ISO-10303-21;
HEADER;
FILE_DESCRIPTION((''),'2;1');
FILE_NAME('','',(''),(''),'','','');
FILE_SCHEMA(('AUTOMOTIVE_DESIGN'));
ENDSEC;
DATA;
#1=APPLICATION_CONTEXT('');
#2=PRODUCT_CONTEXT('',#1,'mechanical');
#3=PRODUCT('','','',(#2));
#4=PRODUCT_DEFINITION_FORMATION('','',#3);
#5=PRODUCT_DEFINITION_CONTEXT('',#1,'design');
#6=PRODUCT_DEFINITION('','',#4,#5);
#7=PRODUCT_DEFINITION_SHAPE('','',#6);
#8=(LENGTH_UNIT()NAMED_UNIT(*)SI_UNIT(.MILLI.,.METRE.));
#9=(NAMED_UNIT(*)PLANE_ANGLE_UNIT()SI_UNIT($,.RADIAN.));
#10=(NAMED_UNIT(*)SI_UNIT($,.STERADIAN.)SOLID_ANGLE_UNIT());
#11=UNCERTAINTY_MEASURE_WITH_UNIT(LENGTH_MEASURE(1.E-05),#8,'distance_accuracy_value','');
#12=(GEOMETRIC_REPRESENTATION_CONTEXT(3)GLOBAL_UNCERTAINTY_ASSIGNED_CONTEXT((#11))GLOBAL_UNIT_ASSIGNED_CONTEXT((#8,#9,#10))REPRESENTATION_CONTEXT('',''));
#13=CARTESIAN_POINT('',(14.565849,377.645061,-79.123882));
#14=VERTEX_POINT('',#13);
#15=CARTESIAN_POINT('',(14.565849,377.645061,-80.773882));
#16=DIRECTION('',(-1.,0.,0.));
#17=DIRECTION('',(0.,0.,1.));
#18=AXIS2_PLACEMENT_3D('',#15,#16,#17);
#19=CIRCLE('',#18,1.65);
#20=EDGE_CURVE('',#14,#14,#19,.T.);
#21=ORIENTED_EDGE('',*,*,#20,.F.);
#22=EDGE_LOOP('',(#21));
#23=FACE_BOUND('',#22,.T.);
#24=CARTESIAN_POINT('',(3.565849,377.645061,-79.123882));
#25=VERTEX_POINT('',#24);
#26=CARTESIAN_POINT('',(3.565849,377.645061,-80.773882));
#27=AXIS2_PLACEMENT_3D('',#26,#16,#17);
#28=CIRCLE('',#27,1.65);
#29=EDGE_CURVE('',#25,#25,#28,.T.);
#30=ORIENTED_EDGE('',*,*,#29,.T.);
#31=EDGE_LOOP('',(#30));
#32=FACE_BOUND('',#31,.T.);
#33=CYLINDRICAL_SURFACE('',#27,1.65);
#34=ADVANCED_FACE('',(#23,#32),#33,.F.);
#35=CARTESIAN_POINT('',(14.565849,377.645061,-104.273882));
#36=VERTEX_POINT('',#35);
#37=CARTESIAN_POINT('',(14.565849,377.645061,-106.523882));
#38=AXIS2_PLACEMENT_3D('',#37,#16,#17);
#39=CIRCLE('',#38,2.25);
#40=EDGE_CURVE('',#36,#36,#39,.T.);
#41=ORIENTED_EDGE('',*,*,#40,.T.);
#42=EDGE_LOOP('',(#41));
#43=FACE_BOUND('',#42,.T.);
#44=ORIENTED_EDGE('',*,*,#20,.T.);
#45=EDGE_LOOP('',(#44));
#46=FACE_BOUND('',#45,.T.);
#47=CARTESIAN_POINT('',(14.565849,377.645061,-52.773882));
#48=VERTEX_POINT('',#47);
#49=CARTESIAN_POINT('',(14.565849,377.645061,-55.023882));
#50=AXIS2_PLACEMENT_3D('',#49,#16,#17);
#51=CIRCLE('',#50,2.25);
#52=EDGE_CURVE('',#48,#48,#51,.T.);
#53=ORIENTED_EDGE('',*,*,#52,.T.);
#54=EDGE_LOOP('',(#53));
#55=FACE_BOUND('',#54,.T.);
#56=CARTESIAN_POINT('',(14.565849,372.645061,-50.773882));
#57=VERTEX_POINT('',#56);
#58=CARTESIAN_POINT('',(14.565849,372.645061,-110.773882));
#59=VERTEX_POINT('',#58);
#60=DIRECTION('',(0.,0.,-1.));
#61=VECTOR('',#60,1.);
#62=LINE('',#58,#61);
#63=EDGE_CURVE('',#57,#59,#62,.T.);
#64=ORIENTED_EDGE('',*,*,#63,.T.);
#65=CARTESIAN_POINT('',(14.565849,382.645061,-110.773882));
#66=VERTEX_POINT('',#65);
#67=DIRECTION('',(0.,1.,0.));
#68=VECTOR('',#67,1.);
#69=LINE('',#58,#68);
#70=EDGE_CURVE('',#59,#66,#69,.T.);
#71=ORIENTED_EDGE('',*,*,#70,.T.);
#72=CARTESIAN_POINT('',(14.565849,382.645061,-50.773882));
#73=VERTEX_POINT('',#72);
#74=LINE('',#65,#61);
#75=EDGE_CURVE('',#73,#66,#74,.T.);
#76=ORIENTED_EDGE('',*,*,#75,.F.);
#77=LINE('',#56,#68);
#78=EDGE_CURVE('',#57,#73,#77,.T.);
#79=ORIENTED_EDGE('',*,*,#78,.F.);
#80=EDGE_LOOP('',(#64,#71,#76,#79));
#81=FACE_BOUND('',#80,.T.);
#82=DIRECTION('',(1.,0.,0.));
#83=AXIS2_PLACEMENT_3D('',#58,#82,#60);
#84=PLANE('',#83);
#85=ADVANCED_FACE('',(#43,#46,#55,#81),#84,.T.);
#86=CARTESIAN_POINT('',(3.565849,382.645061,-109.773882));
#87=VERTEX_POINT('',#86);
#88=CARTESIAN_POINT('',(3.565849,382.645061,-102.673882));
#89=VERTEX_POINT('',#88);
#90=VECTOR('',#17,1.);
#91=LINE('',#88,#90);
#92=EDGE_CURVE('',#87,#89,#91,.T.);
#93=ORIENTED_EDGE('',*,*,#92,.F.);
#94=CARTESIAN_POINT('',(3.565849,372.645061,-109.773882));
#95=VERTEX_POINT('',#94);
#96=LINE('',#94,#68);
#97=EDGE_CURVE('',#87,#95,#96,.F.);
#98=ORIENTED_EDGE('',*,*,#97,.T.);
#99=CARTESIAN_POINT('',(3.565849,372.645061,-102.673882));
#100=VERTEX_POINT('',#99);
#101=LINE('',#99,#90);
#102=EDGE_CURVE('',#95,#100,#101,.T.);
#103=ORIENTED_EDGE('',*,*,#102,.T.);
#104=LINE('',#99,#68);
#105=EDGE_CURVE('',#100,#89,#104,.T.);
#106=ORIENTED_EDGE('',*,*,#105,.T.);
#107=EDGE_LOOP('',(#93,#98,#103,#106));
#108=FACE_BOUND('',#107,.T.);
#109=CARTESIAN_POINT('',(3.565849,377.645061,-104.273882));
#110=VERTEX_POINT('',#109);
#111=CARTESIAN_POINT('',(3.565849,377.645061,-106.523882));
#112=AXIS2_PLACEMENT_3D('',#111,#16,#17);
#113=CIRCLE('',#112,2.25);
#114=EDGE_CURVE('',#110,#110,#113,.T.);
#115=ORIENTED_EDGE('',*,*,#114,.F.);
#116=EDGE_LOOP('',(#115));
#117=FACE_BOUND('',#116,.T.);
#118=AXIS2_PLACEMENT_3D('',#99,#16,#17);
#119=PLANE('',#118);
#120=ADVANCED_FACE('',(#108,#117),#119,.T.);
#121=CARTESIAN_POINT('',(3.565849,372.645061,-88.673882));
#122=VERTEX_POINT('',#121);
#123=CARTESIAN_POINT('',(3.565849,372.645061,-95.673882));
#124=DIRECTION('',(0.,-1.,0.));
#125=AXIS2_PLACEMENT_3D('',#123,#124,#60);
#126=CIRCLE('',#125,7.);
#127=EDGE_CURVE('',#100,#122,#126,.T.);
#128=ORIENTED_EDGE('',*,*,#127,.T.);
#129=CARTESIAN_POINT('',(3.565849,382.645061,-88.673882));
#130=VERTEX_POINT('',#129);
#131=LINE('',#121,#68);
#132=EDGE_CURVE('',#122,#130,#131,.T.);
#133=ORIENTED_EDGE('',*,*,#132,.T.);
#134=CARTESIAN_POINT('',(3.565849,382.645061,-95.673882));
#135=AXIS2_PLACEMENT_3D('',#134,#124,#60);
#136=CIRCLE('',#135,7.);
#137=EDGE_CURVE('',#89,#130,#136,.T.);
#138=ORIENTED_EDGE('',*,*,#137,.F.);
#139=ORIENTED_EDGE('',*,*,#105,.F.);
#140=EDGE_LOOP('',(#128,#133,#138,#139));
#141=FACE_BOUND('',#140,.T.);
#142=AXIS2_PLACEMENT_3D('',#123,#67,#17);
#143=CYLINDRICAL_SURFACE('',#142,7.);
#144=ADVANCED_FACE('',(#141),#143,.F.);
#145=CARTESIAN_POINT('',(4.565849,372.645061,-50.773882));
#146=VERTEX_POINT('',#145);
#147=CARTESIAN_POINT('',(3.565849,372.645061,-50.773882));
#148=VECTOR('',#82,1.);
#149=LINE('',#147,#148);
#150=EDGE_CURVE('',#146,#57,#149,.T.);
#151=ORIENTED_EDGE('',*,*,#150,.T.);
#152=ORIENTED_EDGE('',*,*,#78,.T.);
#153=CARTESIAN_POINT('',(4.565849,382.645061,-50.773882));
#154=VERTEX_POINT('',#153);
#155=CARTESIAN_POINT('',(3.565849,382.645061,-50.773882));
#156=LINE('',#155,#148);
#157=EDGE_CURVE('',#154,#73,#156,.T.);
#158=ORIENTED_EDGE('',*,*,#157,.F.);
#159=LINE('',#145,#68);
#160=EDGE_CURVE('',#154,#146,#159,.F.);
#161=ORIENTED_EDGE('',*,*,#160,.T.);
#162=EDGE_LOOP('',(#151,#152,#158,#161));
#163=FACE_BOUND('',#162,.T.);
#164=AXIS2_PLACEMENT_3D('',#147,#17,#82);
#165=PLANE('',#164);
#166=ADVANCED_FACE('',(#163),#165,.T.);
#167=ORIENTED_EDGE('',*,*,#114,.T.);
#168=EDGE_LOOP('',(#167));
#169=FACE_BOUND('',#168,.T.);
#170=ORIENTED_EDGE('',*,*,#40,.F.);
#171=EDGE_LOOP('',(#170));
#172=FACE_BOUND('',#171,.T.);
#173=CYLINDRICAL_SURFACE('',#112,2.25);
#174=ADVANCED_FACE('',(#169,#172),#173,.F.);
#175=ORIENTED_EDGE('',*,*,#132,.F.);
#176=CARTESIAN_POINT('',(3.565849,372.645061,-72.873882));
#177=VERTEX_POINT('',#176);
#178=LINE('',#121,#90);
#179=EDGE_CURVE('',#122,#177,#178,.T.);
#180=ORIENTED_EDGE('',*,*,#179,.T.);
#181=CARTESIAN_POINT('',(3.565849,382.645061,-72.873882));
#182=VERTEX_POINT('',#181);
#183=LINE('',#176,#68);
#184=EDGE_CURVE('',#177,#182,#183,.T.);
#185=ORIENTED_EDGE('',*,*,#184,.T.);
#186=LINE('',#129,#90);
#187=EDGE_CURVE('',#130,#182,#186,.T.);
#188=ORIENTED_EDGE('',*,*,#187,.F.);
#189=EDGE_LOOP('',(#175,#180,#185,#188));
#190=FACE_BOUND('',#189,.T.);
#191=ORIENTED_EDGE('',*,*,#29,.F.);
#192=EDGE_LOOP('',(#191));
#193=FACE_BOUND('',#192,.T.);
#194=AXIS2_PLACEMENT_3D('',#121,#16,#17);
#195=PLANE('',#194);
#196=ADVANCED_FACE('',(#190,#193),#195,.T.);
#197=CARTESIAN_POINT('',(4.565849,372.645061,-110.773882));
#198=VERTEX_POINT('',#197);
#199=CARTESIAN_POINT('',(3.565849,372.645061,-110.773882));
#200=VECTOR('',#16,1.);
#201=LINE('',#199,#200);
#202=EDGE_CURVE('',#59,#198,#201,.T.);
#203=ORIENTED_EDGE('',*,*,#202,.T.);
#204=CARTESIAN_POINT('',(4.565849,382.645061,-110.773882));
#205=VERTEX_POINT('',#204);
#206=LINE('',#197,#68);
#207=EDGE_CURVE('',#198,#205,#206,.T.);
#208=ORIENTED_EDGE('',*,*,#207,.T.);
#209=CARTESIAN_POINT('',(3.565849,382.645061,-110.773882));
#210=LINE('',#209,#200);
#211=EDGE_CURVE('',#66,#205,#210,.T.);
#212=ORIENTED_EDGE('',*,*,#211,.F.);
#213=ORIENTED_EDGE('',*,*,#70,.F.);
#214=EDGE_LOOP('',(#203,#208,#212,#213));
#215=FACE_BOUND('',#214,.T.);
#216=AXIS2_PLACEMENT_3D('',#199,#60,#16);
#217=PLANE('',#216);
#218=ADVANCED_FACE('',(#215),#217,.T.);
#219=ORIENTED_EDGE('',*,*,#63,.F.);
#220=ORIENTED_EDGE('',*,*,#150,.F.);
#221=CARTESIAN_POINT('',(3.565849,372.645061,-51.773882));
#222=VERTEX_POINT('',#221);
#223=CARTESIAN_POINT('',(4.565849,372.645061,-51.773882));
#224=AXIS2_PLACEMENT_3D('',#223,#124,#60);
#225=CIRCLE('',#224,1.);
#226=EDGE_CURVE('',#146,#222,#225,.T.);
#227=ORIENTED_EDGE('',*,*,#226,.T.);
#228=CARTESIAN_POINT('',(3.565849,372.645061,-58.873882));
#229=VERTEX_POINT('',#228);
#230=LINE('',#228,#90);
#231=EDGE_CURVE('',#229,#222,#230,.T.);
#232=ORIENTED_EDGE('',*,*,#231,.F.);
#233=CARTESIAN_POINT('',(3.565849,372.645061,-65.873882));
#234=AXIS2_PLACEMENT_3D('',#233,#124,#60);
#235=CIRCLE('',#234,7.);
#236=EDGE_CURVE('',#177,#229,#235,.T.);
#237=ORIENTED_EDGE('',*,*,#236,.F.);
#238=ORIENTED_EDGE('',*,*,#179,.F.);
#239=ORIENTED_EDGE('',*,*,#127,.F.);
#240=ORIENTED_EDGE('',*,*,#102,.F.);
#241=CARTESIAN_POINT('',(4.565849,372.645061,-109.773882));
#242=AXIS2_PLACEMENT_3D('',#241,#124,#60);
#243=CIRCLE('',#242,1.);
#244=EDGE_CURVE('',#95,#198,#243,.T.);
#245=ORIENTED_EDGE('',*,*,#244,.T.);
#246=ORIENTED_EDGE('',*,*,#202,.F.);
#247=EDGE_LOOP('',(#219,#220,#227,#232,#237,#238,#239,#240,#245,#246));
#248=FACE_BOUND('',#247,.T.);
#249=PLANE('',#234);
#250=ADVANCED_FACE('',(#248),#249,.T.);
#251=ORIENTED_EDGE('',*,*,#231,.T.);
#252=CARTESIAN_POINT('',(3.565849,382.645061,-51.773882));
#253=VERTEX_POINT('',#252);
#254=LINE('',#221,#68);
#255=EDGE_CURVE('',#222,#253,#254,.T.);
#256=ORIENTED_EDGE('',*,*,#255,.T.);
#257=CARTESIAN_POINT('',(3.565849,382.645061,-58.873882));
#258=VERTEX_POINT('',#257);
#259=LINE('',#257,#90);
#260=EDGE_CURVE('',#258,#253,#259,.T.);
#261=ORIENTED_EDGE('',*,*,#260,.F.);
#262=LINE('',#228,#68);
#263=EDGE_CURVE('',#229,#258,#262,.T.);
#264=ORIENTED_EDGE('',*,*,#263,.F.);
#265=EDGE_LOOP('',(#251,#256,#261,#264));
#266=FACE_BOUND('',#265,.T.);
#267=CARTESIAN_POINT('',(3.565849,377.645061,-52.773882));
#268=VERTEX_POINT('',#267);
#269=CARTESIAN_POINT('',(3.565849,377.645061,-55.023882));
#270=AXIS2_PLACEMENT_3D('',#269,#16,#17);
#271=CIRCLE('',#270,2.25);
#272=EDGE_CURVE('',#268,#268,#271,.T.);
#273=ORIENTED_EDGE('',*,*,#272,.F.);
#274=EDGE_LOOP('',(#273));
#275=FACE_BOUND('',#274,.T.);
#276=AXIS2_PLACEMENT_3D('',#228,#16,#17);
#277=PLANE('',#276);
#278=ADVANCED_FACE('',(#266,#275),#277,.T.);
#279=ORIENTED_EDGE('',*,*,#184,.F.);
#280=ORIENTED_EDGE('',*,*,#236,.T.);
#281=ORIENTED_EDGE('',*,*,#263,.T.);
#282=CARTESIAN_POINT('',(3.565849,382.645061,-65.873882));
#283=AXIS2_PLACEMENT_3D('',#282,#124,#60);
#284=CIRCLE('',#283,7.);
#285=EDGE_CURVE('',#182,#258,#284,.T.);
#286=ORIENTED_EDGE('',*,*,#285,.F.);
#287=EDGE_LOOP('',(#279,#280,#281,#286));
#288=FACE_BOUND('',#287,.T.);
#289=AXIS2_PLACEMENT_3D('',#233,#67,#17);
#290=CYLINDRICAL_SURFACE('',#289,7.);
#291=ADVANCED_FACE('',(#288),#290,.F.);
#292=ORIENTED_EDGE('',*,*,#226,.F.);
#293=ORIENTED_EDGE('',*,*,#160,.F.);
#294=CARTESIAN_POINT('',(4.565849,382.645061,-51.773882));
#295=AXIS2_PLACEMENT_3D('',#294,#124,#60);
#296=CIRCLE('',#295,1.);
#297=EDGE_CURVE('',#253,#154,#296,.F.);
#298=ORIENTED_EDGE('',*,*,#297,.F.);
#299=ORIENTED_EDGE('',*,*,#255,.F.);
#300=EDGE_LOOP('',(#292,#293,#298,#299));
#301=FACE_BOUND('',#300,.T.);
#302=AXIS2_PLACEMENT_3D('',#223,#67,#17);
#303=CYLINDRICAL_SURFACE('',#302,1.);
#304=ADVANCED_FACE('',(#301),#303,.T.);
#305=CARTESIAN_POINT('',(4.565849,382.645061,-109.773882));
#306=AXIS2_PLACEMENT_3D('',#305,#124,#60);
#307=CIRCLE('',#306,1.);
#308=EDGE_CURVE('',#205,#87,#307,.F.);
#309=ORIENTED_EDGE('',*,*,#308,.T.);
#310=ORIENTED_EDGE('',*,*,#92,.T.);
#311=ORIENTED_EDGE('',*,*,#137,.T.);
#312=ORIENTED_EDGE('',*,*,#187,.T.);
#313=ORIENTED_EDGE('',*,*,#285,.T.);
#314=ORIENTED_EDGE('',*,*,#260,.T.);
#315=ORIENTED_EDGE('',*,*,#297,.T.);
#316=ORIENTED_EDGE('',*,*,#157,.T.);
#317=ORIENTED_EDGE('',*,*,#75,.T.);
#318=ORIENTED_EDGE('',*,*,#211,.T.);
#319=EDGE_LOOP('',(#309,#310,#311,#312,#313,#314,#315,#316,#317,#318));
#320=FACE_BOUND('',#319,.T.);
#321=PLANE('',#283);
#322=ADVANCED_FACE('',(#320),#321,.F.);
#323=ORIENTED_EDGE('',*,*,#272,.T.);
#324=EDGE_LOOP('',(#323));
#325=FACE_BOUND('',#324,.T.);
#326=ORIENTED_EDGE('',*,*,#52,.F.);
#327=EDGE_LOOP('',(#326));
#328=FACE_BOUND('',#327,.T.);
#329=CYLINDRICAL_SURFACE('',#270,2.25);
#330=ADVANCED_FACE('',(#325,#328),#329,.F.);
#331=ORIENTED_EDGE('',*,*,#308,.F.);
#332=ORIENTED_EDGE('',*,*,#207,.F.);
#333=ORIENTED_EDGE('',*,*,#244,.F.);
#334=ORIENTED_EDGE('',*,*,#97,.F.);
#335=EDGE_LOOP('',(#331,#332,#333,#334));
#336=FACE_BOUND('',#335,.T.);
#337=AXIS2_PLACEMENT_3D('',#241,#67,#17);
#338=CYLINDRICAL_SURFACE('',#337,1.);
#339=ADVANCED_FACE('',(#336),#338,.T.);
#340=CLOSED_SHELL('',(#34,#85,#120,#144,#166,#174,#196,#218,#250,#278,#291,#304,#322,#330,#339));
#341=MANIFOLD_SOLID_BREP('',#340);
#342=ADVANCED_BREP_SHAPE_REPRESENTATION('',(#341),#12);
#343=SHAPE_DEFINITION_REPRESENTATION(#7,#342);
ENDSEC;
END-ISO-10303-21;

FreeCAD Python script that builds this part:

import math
import FreeCAD as App
import Part
import Sketcher

V = App.Vector


def edges_at(feature, points):
    """Names of the edges that pass closest to the given points."""
    edges = feature.Shape.Edges
    near = lambda p: min(range(len(edges)), key=lambda i: edges[i].distToShape(Part.Vertex(*p))[0])
    return sorted({f"Edge{near(p) + 1}" for p in points})

doc = App.newDocument("Part")
params = doc.addObject("Spreadsheet::Sheet", "Params")
for row, (alias, value) in enumerate([
    ("sketch1_radius", "7 mm"),
    ("sketch1_width", "11 mm"),
    ("sketch1_height", "60 mm"),
    ("sketch1_height2", "8.1 mm"),
    ("pad1_length", "10 mm"),
    ("fillet_radius", "1 mm"),
    ("sketch2_diameter", "4.5 mm"),
    ("hole_diameter", "4.5 mm"),
    ("sketch3_diameter", "3.3 mm"),
    ("hole2_diameter", "3.3 mm"),
], start=1):
    params.set(f"A{row}", alias)
    params.set(f"B{row}", "=" + value)
    params.setAlias(f"B{row}", alias)

body = doc.addObject("PartDesign::Body", "Body")

sketch1 = body.newObject("Sketcher::SketchObject", "Sketch")
sketch1.AttachmentSupport = (doc.getObject("XZ_Plane"), [""])
sketch1.MapMode = "FlatFace"
sketch1.AttachmentOffset = App.Placement(V(0, 0, -382.645061), App.Rotation())
sketch1.addGeometry(Part.LineSegment(V(4, -111, 0), V(4, -103, 0)), False)
sketch1.addGeometry(Part.ArcOfCircle(Part.Circle(V(4, -96, 0), V(0, 0, 1), 7), math.radians(-90), math.radians(90)), False)
sketch1.addGeometry(Part.LineSegment(V(4, -89, 0), V(4, -73, 0)), False)
sketch1.addGeometry(Part.ArcOfCircle(Part.Circle(V(4, -66, 0), V(0, 0, 1), 7), math.radians(-90), math.radians(90)), False)
sketch1.addGeometry(Part.LineSegment(V(4, -59, 0), V(4, -51, 0)), False)
sketch1.addGeometry(Part.LineSegment(V(4, -51, 0), V(15, -51, 0)), False)
sketch1.addGeometry(Part.LineSegment(V(15, -51, 0), V(15, -111, 0)), False)
sketch1.addGeometry(Part.LineSegment(V(15, -111, 0), V(4, -111, 0)), False)
sketch1.addConstraint(Sketcher.Constraint("Coincident", 0, 2, 1, 1))
sketch1.addConstraint(Sketcher.Constraint("Coincident", 1, 2, 2, 1))
sketch1.addConstraint(Sketcher.Constraint("Coincident", 2, 2, 3, 1))
sketch1.addConstraint(Sketcher.Constraint("Coincident", 3, 2, 4, 1))
sketch1.addConstraint(Sketcher.Constraint("Coincident", 4, 2, 5, 1))
sketch1.addConstraint(Sketcher.Constraint("Coincident", 5, 2, 6, 1))
sketch1.addConstraint(Sketcher.Constraint("Coincident", 6, 2, 7, 1))
sketch1.addConstraint(Sketcher.Constraint("Coincident", 7, 2, 0, 1))
sketch1.addConstraint(Sketcher.Constraint("Vertical", 0))
sketch1.addConstraint(Sketcher.Constraint("Vertical", 2))
sketch1.addConstraint(Sketcher.Constraint("Vertical", 4))
sketch1.addConstraint(Sketcher.Constraint("Horizontal", 5))
sketch1.addConstraint(Sketcher.Constraint("Vertical", 6))
sketch1.addConstraint(Sketcher.Constraint("Horizontal", 7))
sketch1.addConstraint(Sketcher.Constraint("Equal", 1, 3))
sketch1.addConstraint(Sketcher.Constraint("Vertical", 1, 3, 3, 3))
sketch1.addConstraint(Sketcher.Constraint("Vertical", 3, 3, 0, 2))
sketch1.addConstraint(Sketcher.Constraint("Vertical", 0, 2, 1, 2))
sketch1.addConstraint(Sketcher.Constraint("Vertical", 2, 2, 3, 2))
sketch1.addConstraint(Sketcher.Constraint("Equal", 0, 4))
sketch1.addConstraint(Sketcher.Constraint("Radius", 1, 7.0))
sketch1.addConstraint(Sketcher.Constraint("DistanceX", 5, 1, 5, 2, 11.0))
sketch1.addConstraint(Sketcher.Constraint("DistanceY", 6, 2, 6, 1, 60.0))
sketch1.addConstraint(Sketcher.Constraint("DistanceY", 0, 1, 0, 2, 8.1))
sketch1.addConstraint(Sketcher.Constraint("DistanceX", -1, 1, 1, 3, 3.565849))
sketch1.addConstraint(Sketcher.Constraint("DistanceY", 1, 3, -1, 1, 95.673882))
sketch1.setExpression("Constraints[20]", "Params.sketch1_radius")
sketch1.setExpression("Constraints[21]", "Params.sketch1_width")
sketch1.setExpression("Constraints[22]", "Params.sketch1_height")
sketch1.setExpression("Constraints[23]", "Params.sketch1_height2")
pad1 = body.newObject("PartDesign::Pad", "Pad")
pad1.Profile = sketch1
pad1.setExpression("Length", "Params.pad1_length")
doc.recompute()

fillet = body.newObject("PartDesign::Fillet", "Fillet")
fillet.Base = (pad1, edges_at(pad1, [(3.566, 377.645, -50.774), (3.566, 377.645, -110.774)]))
fillet.setExpression("Radius", "Params.fillet_radius")

sketch2 = body.newObject("Sketcher::SketchObject", "Sketch001")
sketch2.AttachmentSupport = (doc.getObject("YZ_Plane"), [""])
sketch2.MapMode = "FlatFace"
sketch2.AttachmentOffset = App.Placement(V(0, 0, 3.565849), App.Rotation())
sketch2.addGeometry(Part.Circle(V(377.6, -106.5, 0), V(0, 0, 1), 2.2), False)
sketch2.addGeometry(Part.Circle(V(377.6, -55, 0), V(0, 0, 1), 2.2), False)
sketch2.addConstraint(Sketcher.Constraint("Equal", 0, 1))
sketch2.addConstraint(Sketcher.Constraint("Vertical", 0, 3, 1, 3))
sketch2.addConstraint(Sketcher.Constraint("Diameter", 0, 4.5))
sketch2.addConstraint(Sketcher.Constraint("DistanceY", 0, 3, 1, 3, 51.5))
sketch2.addConstraint(Sketcher.Constraint("DistanceX", -1, 1, 0, 3, 377.645061))
sketch2.addConstraint(Sketcher.Constraint("DistanceY", 0, 3, -1, 1, 106.523882))
sketch2.setExpression("Constraints[2]", "Params.sketch2_diameter")
doc.recompute()
hole = body.newObject("PartDesign::Hole", "Hole")
hole.Profile = sketch2
hole.ThreadType = "None"
hole.setExpression("Diameter", "Params.hole_diameter")
hole.DepthType = "ThroughAll"
hole.Reversed = True

sketch3 = body.newObject("Sketcher::SketchObject", "Sketch002")
sketch3.AttachmentSupport = (doc.getObject("YZ_Plane"), [""])
sketch3.MapMode = "FlatFace"
sketch3.AttachmentOffset = App.Placement(V(0, 0, 3.565849), App.Rotation())
sketch3.addGeometry(Part.Circle(V(377.6, -80.8, 0), V(0, 0, 1), 1.6), False)
sketch3.addConstraint(Sketcher.Constraint("Diameter", 0, 3.3))
sketch3.addConstraint(Sketcher.Constraint("DistanceX", -1, 1, 0, 3, 377.645061))
sketch3.addConstraint(Sketcher.Constraint("DistanceY", 0, 3, -1, 1, 80.773882))
sketch3.setExpression("Constraints[0]", "Params.sketch3_diameter")
doc.recompute()
hole2 = body.newObject("PartDesign::Hole", "Hole001")
hole2.Profile = sketch3
hole2.ThreadType = "None"
hole2.setExpression("Diameter", "Params.hole2_diameter")
hole2.DepthType = "ThroughAll"
hole2.Reversed = True

doc.recompute()
